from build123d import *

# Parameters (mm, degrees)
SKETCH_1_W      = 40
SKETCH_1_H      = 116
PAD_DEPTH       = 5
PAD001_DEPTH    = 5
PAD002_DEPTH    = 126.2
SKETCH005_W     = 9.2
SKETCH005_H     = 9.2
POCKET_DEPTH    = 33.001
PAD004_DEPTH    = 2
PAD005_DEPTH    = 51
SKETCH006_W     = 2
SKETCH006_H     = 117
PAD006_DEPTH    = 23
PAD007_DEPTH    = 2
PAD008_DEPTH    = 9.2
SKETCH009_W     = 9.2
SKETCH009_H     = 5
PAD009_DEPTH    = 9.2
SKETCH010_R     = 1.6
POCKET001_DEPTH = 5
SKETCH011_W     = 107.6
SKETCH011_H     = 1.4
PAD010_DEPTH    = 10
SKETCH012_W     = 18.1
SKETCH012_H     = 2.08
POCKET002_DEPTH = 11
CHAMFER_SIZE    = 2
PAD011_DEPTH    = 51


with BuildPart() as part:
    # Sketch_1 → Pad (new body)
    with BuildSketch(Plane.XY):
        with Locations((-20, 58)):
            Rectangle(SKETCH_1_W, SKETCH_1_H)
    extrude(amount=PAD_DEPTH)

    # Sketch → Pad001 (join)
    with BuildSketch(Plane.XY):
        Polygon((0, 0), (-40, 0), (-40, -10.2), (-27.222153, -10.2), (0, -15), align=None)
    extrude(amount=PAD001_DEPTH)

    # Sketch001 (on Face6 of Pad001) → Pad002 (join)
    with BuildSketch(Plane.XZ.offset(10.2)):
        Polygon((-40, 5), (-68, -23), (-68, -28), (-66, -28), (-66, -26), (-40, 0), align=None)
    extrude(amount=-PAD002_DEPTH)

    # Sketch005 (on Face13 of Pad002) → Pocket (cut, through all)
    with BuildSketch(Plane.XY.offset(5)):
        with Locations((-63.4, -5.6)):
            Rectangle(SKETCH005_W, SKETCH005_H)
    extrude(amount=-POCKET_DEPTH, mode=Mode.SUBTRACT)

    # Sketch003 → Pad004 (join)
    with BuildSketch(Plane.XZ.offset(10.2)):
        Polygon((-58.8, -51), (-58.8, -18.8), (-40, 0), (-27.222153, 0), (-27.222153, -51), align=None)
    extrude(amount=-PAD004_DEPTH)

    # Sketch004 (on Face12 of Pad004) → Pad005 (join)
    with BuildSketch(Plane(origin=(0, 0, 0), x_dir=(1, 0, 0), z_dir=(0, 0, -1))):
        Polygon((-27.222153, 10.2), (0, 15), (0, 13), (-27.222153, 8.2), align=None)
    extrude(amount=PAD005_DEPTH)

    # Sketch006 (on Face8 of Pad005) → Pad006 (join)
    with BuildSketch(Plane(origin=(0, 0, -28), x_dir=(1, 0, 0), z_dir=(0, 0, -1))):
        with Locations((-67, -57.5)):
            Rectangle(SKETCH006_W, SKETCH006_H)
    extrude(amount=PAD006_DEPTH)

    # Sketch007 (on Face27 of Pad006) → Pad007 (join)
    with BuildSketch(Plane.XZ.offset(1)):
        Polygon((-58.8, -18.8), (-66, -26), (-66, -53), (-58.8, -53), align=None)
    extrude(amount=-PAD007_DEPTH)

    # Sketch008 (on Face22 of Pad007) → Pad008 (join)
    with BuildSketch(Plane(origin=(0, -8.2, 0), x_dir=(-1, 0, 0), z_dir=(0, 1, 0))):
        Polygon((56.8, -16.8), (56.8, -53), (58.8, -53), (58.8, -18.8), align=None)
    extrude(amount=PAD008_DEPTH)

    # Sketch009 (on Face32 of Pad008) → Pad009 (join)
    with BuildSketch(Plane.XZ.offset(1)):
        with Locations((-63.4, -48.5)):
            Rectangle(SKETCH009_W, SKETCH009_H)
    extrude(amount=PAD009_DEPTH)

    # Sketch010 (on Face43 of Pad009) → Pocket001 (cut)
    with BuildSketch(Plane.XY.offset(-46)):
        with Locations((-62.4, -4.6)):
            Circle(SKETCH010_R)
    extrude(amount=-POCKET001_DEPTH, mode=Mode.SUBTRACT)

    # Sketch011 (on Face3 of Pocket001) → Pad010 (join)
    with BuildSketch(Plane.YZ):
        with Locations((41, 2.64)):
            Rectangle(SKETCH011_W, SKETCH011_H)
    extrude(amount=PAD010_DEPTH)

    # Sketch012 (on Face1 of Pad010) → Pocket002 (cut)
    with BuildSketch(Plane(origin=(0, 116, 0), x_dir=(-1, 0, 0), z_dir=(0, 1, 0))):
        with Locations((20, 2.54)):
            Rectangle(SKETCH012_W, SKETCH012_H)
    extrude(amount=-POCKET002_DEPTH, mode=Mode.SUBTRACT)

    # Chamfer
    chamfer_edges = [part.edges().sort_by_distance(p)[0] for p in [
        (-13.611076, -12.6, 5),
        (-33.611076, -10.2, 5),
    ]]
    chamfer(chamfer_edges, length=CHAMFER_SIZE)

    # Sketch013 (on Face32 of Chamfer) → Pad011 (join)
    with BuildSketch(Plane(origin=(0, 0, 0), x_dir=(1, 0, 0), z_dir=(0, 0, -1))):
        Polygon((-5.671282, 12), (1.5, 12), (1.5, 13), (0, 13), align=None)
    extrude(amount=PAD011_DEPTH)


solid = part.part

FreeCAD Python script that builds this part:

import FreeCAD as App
import Part
import Sketcher

V = App.Vector
Q = App.Units.Quantity


def edges_at(feature, points):
    """Names of the edges that pass closest to the given points."""
    edges = feature.Shape.Edges
    near = lambda p: min(range(len(edges)), key=lambda i: edges[i].distToShape(Part.Vertex(*p))[0])
    return sorted({f"Edge{near(p) + 1}" for p in points})

doc = App.newDocument("Part")
params = doc.addObject("Spreadsheet::Sheet", "Params")
for row, (alias, value) in enumerate([
    ("sketch1_width", "40 mm"),
    ("sketch1_height", "116 mm"),
    ("pad1_length", "5 mm"),
    ("sketch2_width", "40 mm"),
    ("sketch2_height", "15 mm"),
    ("sketch2_height2", "10.2 mm"),
    ("pad2_length", "5 mm"),
    ("sketch3_width", "2 mm"),
    ("sketch3_height", "5 mm"),
    ("pad3_length", "126.2 mm"),
    ("sketch4_width", "9.2 mm"),
    ("sketch5_height", "51 mm"),
    ("sketch5_height2", "32.2 mm"),
    ("pad4_length", "2 mm"),
    ("sketch6_height", "2 mm"),
    ("pad5_length", "51 mm"),
    ("sketch7_width", "2 mm"),
    ("sketch7_height", "117 mm"),
    ("pad6_length", "23 mm"),
    ("sketch8_height", "27 mm"),
    ("sketch8_width", "7.2 mm"),
    ("pad7_length", "2 mm"),
    ("sketch9_width", "2 mm"),
    ("sketch9_height", "36.2 mm"),
    ("pad8_length", "9.2 mm"),
    ("sketch10_height", "5 mm"),
    ("sketch10_width", "9.2 mm"),
    ("pad9_length", "9.2 mm"),
    ("sketch11_diameter", "3.2 mm"),
    ("pocket2_length", "5 mm"),
    ("sketch12_width", "107.6 mm"),
    ("sketch12_height", "1.4 mm"),
    ("pad10_length", "10 mm"),
    ("sketch13_width", "18.1 mm"),
    ("sketch13_height", "2.08 mm"),
    ("pocket3_length", "11 mm"),
    ("chamfer_size", "2 mm"),
    ("sketch14_height", "1 mm"),
    ("sketch14_width", "1.5 mm"),
    ("pad11_length", "51 mm"),
], start=1):
    params.set(f"A{row}", alias)
    params.set(f"B{row}", "=" + value)
    params.setAlias(f"B{row}", alias)

body = doc.addObject("PartDesign::Body", "Body")

sketch1 = body.newObject("Sketcher::SketchObject", "Sketch")
sketch1.AttachmentSupport = (doc.getObject("XY_Plane"), [""])
sketch1.MapMode = "FlatFace"
sketch1.addGeometry(Part.LineSegment(V(-40, 116, 0), V(-40, 0, 0)), False)
sketch1.addGeometry(Part.LineSegment(V(-40, 0, 0), V(0, 0, 0)), False)
sketch1.addGeometry(Part.LineSegment(V(0, 0, 0), V(0, 116, 0)), False)
sketch1.addGeometry(Part.LineSegment(V(0, 116, 0), V(-40, 116, 0)), False)
sketch1.addConstraint(Sketcher.Constraint("Coincident", 0, 2, 1, 1))
sketch1.addConstraint(Sketcher.Constraint("Coincident", 1, 2, 2, 1))
sketch1.addConstraint(Sketcher.Constraint("Coincident", 2, 2, 3, 1))
sketch1.addConstraint(Sketcher.Constraint("Coincident", 3, 2, 0, 1))
sketch1.addConstraint(Sketcher.Constraint("Vertical", 0))
sketch1.addConstraint(Sketcher.Constraint("Horizontal", 1))
sketch1.addConstraint(Sketcher.Constraint("Vertical", 2))
sketch1.addConstraint(Sketcher.Constraint("Horizontal", 3))
sketch1.addConstraint(Sketcher.Constraint("Coincident", 1, 2, -1, 1))
sketch1.addConstraint(Sketcher.Constraint("DistanceX", 1, 1, 1, 2, 40.0))
sketch1.addConstraint(Sketcher.Constraint("DistanceY", 0, 2, 0, 1, 116.0))
sketch1.setExpression("Constraints[9]", "Params.sketch1_width")
sketch1.setExpression("Constraints[10]", "Params.sketch1_height")
pad1 = body.newObject("PartDesign::Pad", "Pad")
pad1.Profile = sketch1
pad1.setExpression("Length", "Params.pad1_length")

sketch2 = body.newObject("Sketcher::SketchObject", "Sketch001")
sketch2.AttachmentSupport = (doc.getObject("XY_Plane"), [""])
sketch2.MapMode = "FlatFace"
sketch2.addGeometry(Part.LineSegment(V(0, 0, 0), V(-40, 0, 0)), False)
sketch2.addGeometry(Part.LineSegment(V(-40, 0, 0), V(-40, -10, 0)), False)
sketch2.addGeometry(Part.LineSegment(V(-40, -10, 0), V(-27, -10, 0)), False)
sketch2.addGeometry(Part.LineSegment(V(-27, -10, 0), V(0, -15, 0)), False)
sketch2.addGeometry(Part.LineSegment(V(0, -15, 0), V(0, 0, 0)), False)
sketch2.addConstraint(Sketcher.Constraint("Coincident", 0, 2, 1, 1))
sketch2.addConstraint(Sketcher.Constraint("Coincident", 1, 2, 2, 1))
sketch2.addConstraint(Sketcher.Constraint("Coincident", 2, 2, 3, 1))
sketch2.addConstraint(Sketcher.Constraint("Coincident", 3, 2, 4, 1))
sketch2.addConstraint(Sketcher.Constraint("Coincident", 4, 2, 0, 1))
sketch2.addConstraint(Sketcher.Constraint("Horizontal", 0))
sketch2.addConstraint(Sketcher.Constraint("Vertical", 1))
sketch2.addConstraint(Sketcher.Constraint("Horizontal", 2))
sketch2.addConstraint(Sketcher.Constraint("Vertical", 4))
sketch2.addConstraint(Sketcher.Constraint("Coincident", 4, 2, -1, 1))
sketch2.addConstraint(Sketcher.Constraint("DistanceX", 0, 2, 0, 1, 40.0))
sketch2.addConstraint(Sketcher.Constraint("DistanceY", 4, 1, 4, 2, 15.0))
sketch2.addConstraint(Sketcher.Constraint("Angle", 3, Q("-10 deg")))
sketch2.addConstraint(Sketcher.Constraint("DistanceY", 1, 2, 1, 1, 10.2))
sketch2.setExpression("Constraints[10]", "Params.sketch2_width")
sketch2.setExpression("Constraints[11]", "Params.sketch2_height")
sketch2.setExpression("Constraints[13]", "Params.sketch2_height2")
pad2 = body.newObject("PartDesign::Pad", "Pad001")
pad2.Profile = sketch2
pad2.setExpression("Length", "Params.pad2_length")

sketch3 = body.newObject("Sketcher::SketchObject", "Sketch002")
sketch3.AttachmentSupport = (doc.getObject("XZ_Plane"), [""])
sketch3.MapMode = "FlatFace"
sketch3.AttachmentOffset = App.Placement(V(0, 0, 10.2), App.Rotation())
sketch3.addGeometry(Part.LineSegment(V(-40, 5, 0), V(-68, -23, 0)), False)
sketch3.addGeometry(Part.LineSegment(V(-68, -23, 0), V(-68, -28, 0)), False)
sketch3.addGeometry(Part.LineSegment(V(-68, -28, 0), V(-66, -28, 0)), False)
sketch3.addGeometry(Part.LineSegment(V(-66, -28, 0), V(-66, -26, 0)), False)
sketch3.addGeometry(Part.LineSegment(V(-66, -26, 0), V(-40, 0, 0)), False)
sketch3.addGeometry(Part.LineSegment(V(-40, 0, 0), V(-40, 5, 0)), False)
sketch3.addConstraint(Sketcher.Constraint("Coincident", 0, 2, 1, 1))
sketch3.addConstraint(Sketcher.Constraint("Coincident", 1, 2, 2, 1))
sketch3.addConstraint(Sketcher.Constraint("Coincident", 2, 2, 3, 1))
sketch3.addConstraint(Sketcher.Constraint("Coincident", 3, 2, 4, 1))
sketch3.addConstraint(Sketcher.Constraint("Coincident", 4, 2, 5, 1))
sketch3.addConstraint(Sketcher.Constraint("Coincident", 5, 2, 0, 1))
sketch3.addConstraint(Sketcher.Constraint("Vertical", 1))
sketch3.addConstraint(Sketcher.Constraint("Horizontal", 2))
sketch3.addConstraint(Sketcher.Constraint("Vertical", 3))
sketch3.addConstraint(Sketcher.Constraint("Vertical", 5))
sketch3.addConstraint(Sketcher.Constraint("PointOnObject", 4, 2, -1))
sketch3.addConstraint(Sketcher.Constraint("Parallel", 0, 4))
sketch3.addConstraint(Sketcher.Constraint("Equal", 2, 3))
sketch3.addConstraint(Sketcher.Constraint("Equal", 1, 5))
sketch3.addConstraint(Sketcher.Constraint("DistanceX", 2, 1, 2, 2, 2.0))
sketch3.addConstraint(Sketcher.Constraint("DistanceY", 1, 2, 1, 1, 5.0))
sketch3.addConstraint(Sketcher.Constraint("DistanceX", 0, 2, -1, 1, 68.0))
sketch3.addConstraint(Sketcher.Constraint("DistanceY", 0, 2, -1, 1, 23.0))
sketch3.setExpression("Constraints[14]", "Params.sketch3_width")
sketch3.setExpression("Constraints[15]", "Params.sketch3_height")
pad3 = body.newObject("PartDesign::Pad", "Pad002")
pad3.Profile = sketch3
pad3.setExpression("Length", "Params.pad3_length")
pad3.Reversed = True

sketch4 = body.newObject("Sketcher::SketchObject", "Sketch003")
sketch4.AttachmentSupport = (doc.getObject("XY_Plane"), [""])
sketch4.MapMode = "FlatFace"
sketch4.AttachmentOffset = App.Placement(V(0, 0, 5), App.Rotation())
sketch4.addGeometry(Part.LineSegment(V(-68, -1, 0), V(-68, -10, 0)), False)
sketch4.addGeometry(Part.LineSegment(V(-68, -10, 0), V(-59, -10, 0)), False)
sketch4.addGeometry(Part.LineSegment(V(-59, -10, 0), V(-59, -1, 0)), False)
sketch4.addGeometry(Part.LineSegment(V(-59, -1, 0), V(-68, -1, 0)), False)
sketch4.addConstraint(Sketcher.Constraint("Coincident", 0, 2, 1, 1))
sketch4.addConstraint(Sketcher.Constraint("Coincident", 1, 2, 2, 1))
sketch4.addConstraint(Sketcher.Constraint("Coincident", 2, 2, 3, 1))
sketch4.addConstraint(Sketcher.Constraint("Coincident", 3, 2, 0, 1))
sketch4.addConstraint(Sketcher.Constraint("Vertical", 0))
sketch4.addConstraint(Sketcher.Constraint("Horizontal", 1))
sketch4.addConstraint(Sketcher.Constraint("Vertical", 2))
sketch4.addConstraint(Sketcher.Constraint("Horizontal", 3))
sketch4.addConstraint(Sketcher.Constraint("Equal", 3, 0))
sketch4.addConstraint(Sketcher.Constraint("DistanceX", 1, 1, 1, 2, 9.2))
sketch4.addConstraint(Sketcher.Constraint("DistanceX", 0, 2, -1, 1, 68.0))
sketch4.addConstraint(Sketcher.Constraint("DistanceY", 2, 2, -1, 1, 1.0))
sketch4.setExpression("Constraints[9]", "Params.sketch4_width")
pocket1 = body.newObject("PartDesign::Pocket", "Pocket")
pocket1.Profile = sketch4
pocket1.Type = "ThroughAll"

sketch5 = body.newObject("Sketcher::SketchObject", "Sketch004")
sketch5.AttachmentSupport = (doc.getObject("XZ_Plane"), [""])
sketch5.MapMode = "FlatFace"
sketch5.AttachmentOffset = App.Placement(V(0, 0, 10.2), App.Rotation())
sketch5.addGeometry(Part.LineSegment(V(-59, -19, 0), V(-59, -51, 0)), False)
sketch5.addGeometry(Part.LineSegment(V(-59, -51, 0), V(-27, -51, 0)), False)
sketch5.addGeometry(Part.LineSegment(V(-27, -51, 0), V(-27, 0, 0)), False)
sketch5.addGeometry(Part.LineSegment(V(-27, 0, 0), V(-40, 0, 0)), False)
sketch5.addGeometry(Part.LineSegment(V(-40, 0, 0), V(-59, -19, 0)), False)
sketch5.addConstraint(Sketcher.Constraint("Coincident", 0, 2, 1, 1))
sketch5.addConstraint(Sketcher.Constraint("Coincident", 1, 2, 2, 1))
sketch5.addConstraint(Sketcher.Constraint("Coincident", 2, 2, 3, 1))
sketch5.addConstraint(Sketcher.Constraint("Coincident", 3, 2, 4, 1))
sketch5.addConstraint(Sketcher.Constraint("Coincident", 4, 2, 0, 1))
sketch5.addConstraint(Sketcher.Constraint("Vertical", 0))
sketch5.addConstraint(Sketcher.Constraint("Horizontal", 1))
sketch5.addConstraint(Sketcher.Constraint("Vertical", 2))
sketch5.addConstraint(Sketcher.Constraint("Horizontal", 3))
sketch5.addConstraint(Sketcher.Constraint("PointOnObject", 2, 2, -1))
sketch5.addConstraint(Sketcher.Constraint("DistanceY", 2, 1, 2, 2, 51.0))
sketch5.addConstraint(Sketcher.Constraint("Angle", 4, Q("-135 deg")))
sketch5.addConstraint(Sketcher.Constraint("DistanceY", 0, 2, 0, 1, 32.2))
sketch5.addConstraint(Sketcher.Constraint("DistanceX", 3, 2, -1, 1, 40.0))
sketch5.addConstraint(Sketcher.Constraint("DistanceX", 1, 1, 1, 2, 31.577847))
sketch5.setExpression("Constraints[10]", "Params.sketch5_height")
sketch5.setExpression("Constraints[12]", "Params.sketch5_height2")
pad4 = body.newObject("PartDesign::Pad", "Pad003")
pad4.Profile = sketch5
pad4.setExpression("Length", "Params.pad4_length")
pad4.Reversed = True

sketch6 = body.newObject("Sketcher::SketchObject", "Sketch005")
sketch6.AttachmentSupport = (doc.getObject("XY_Plane"), [""])
sketch6.MapMode = "FlatFace"
sketch6.addGeometry(Part.LineSegment(V(0, -15, 0), V(-27.2, -10.2, 0)), False)
sketch6.addGeometry(Part.LineSegment(V(-27.2, -10.2, 0), V(-27.2, -8.2, 0)), False)
sketch6.addGeometry(Part.LineSegment(V(-27.2, -8.2, 0), V(0, -13, 0)), False)
sketch6.addGeometry(Part.LineSegment(V(0, -13, 0), V(0, -15, 0)), False)
sketch6.addConstraint(Sketcher.Constraint("Coincident", 0, 2, 1, 1))
sketch6.addConstraint(Sketcher.Constraint("Coincident", 1, 2, 2, 1))
sketch6.addConstraint(Sketcher.Constraint("Coincident", 2, 2, 3, 1))
sketch6.addConstraint(Sketcher.Constraint("Coincident", 3, 2, 0, 1))
sketch6.addConstraint(Sketcher.Constraint("Vertical", 1))
sketch6.addConstraint(Sketcher.Constraint("Vertical", 3))
sketch6.addConstraint(Sketcher.Constraint("PointOnObject", 2, 2, -2))
sketch6.addConstraint(Sketcher.Constraint("Parallel", 0, 2))
sketch6.addConstraint(Sketcher.Constraint("DistanceY", 1, 1, 1, 2, 2.0))
sketch6.addConstraint(Sketcher.Constraint("Angle", 0, Q("170 deg")))
sketch6.addConstraint(Sketcher.Constraint("DistanceY", 2, 2, -1, 1, 13.0))
sketch6.addConstraint(Sketcher.Constraint("DistanceY", 0, 2, -1, 1, 10.2))
sketch6.setExpression("Constraints[8]", "Params.sketch6_height")
pad5 = body.newObject("PartDesign::Pad", "Pad004")
pad5.Profile = sketch6
pad5.setExpression("Length", "Params.pad5_length")
pad5.Reversed = True

sketch7 = body.newObject("Sketcher::SketchObject", "Sketch006")
sketch7.AttachmentSupport = (doc.getObject("XY_Plane"), [""])
sketch7.MapMode = "FlatFace"
sketch7.AttachmentOffset = App.Placement(V(0, 0, -28), App.Rotation())
sketch7.addGeometry(Part.LineSegment(V(-68, -1, 0), V(-68, 116, 0)), False)
sketch7.addGeometry(Part.LineSegment(V(-68, 116, 0), V(-66, 116, 0)), False)
sketch7.addGeometry(Part.LineSegment(V(-66, 116, 0), V(-66, -1, 0)), False)
sketch7.addGeometry(Part.LineSegment(V(-66, -1, 0), V(-68, -1, 0)), False)
sketch7.addConstraint(Sketcher.Constraint("Coincident", 0, 2, 1, 1))
sketch7.addConstraint(Sketcher.Constraint("Coincident", 1, 2, 2, 1))
sketch7.addConstraint(Sketcher.Constraint("Coincident", 2, 2, 3, 1))
sketch7.addConstraint(Sketcher.Constraint("Coincident", 3, 2, 0, 1))
sketch7.addConstraint(Sketcher.Constraint("Vertical", 0))
sketch7.addConstraint(Sketcher.Constraint("Horizontal", 1))
sketch7.addConstraint(Sketcher.Constraint("Vertical", 2))
sketch7.addConstraint(Sketcher.Constraint("Horizontal", 3))
sketch7.addConstraint(Sketcher.Constraint("DistanceX", 1, 1, 1, 2, 2.0))
sketch7.addConstraint(Sketcher.Constraint("DistanceY", 0, 1, 0, 2, 117.0))
sketch7.addConstraint(Sketcher.Constraint("DistanceX", 0, 2, -1, 1, 68.0))
sketch7.addConstraint(Sketcher.Constraint("DistanceY", -1, 1, 0, 2, 116.0))
sketch7.setExpression("Constraints[8]", "Params.sketch7_width")
sketch7.setExpression("Constraints[9]", "Params.sketch7_height")
pad6 = body.newObject("PartDesign::Pad", "Pad005")
pad6.Profile = sketch7
pad6.setExpression("Length", "Params.pad6_length")
pad6.Reversed = True

sketch8 = body.newObject("Sketcher::SketchObject", "Sketch007")
sketch8.AttachmentSupport = (doc.getObject("XZ_Plane"), [""])
sketch8.MapMode = "FlatFace"
sketch8.AttachmentOffset = App.Placement(V(0, 0, 1), App.Rotation())
sketch8.addGeometry(Part.LineSegment(V(-59, -19, 0), V(-66, -26, 0)), False)
sketch8.addGeometry(Part.LineSegment(V(-66, -26, 0), V(-66, -53, 0)), False)
sketch8.addGeometry(Part.LineSegment(V(-66, -53, 0), V(-59, -53, 0)), False)
sketch8.addGeometry(Part.LineSegment(V(-59, -53, 0), V(-59, -19, 0)), False)
sketch8.addConstraint(Sketcher.Constraint("Coincident", 0, 2, 1, 1))
sketch8.addConstraint(Sketcher.Constraint("Coincident", 1, 2, 2, 1))
sketch8.addConstraint(Sketcher.Constraint("Coincident", 2, 2, 3, 1))
sketch8.addConstraint(Sketcher.Constraint("Coincident", 3, 2, 0, 1))
sketch8.addConstraint(Sketcher.Constraint("Vertical", 1))
sketch8.addConstraint(Sketcher.Constraint("Horizontal", 2))
sketch8.addConstraint(Sketcher.Constraint("Vertical", 3))
sketch8.addConstraint(Sketcher.Constraint("DistanceY", 1, 2, 1, 1, 27.0))
sketch8.addConstraint(Sketcher.Constraint("Angle", 0, Q("-135 deg")))
sketch8.addConstraint(Sketcher.Constraint("DistanceX", 2, 1, 2, 2, 7.2))
sketch8.addConstraint(Sketcher.Constraint("DistanceX", 0, 2, -1, 1, 66.0))
sketch8.addConstraint(Sketcher.Constraint("DistanceY", 0, 2, -1, 1, 26.0))
sketch8.setExpression("Constraints[7]", "Params.sketch8_height")
sketch8.setExpression("Constraints[9]", "Params.sketch8_width")
pad7 = body.newObject("PartDesign::Pad", "Pad006")
pad7.Profile = sketch8
pad7.setExpression("Length", "Params.pad7_length")
pad7.Reversed = True

sketch9 = body.newObject("Sketcher::SketchObject", "Sketch008")
sketch9.AttachmentSupport = (doc.getObject("XZ_Plane"), [""])
sketch9.MapMode = "FlatFace"
sketch9.AttachmentOffset = App.Placement(V(0, 0, 8.2), App.Rotation())
sketch9.addGeometry(Part.LineSegment(V(-56.8, -16.8, 0), V(-56.8, -53, 0)), False)
sketch9.addGeometry(Part.LineSegment(V(-56.8, -53, 0), V(-58.8, -53, 0)), False)
sketch9.addGeometry(Part.LineSegment(V(-58.8, -53, 0), V(-58.8, -18.8, 0)), False)
sketch9.addGeometry(Part.LineSegment(V(-58.8, -18.8, 0), V(-56.8, -16.8, 0)), False)
sketch9.addConstraint(Sketcher.Constraint("Coincident", 0, 2, 1, 1))
sketch9.addConstraint(Sketcher.Constraint("Coincident", 1, 2, 2, 1))
sketch9.addConstraint(Sketcher.Constraint("Coincident", 2, 2, 3, 1))
sketch9.addConstraint(Sketcher.Constraint("Coincident", 3, 2, 0, 1))
sketch9.addConstraint(Sketcher.Constraint("Vertical", 0))
sketch9.addConstraint(Sketcher.Constraint("Horizontal", 1))
sketch9.addConstraint(Sketcher.Constraint("Vertical", 2))
sketch9.addConstraint(Sketcher.Constraint("DistanceX", 1, 2, 1, 1, 2.0))
sketch9.addConstraint(Sketcher.Constraint("Angle", 3, Q("45 deg")))
sketch9.addConstraint(Sketcher.Constraint("DistanceY", 0, 2, 0, 1, 36.2))
sketch9.addConstraint(Sketcher.Constraint("DistanceY", 0, 2, -1, 1, 53.0))
sketch9.addConstraint(Sketcher.Constraint("DistanceX", 0, 2, -1, 1, 56.8))
sketch9.setExpression("Constraints[7]", "Params.sketch9_width")
sketch9.setExpression("Constraints[9]", "Params.sketch9_height")
pad8 = body.newObject("PartDesign::Pad", "Pad007")
pad8.Profile = sketch9
pad8.setExpression("Length", "Params.pad8_length")
pad8.Reversed = True

sketch10 = body.newObject("Sketcher::SketchObject", "Sketch009")
sketch10.AttachmentSupport = (doc.getObject("XZ_Plane"), [""])
sketch10.MapMode = "FlatFace"
sketch10.AttachmentOffset = App.Placement(V(0, 0, 1), App.Rotation())
sketch10.addGeometry(Part.LineSegment(V(-68, -46, 0), V(-68, -51, 0)), False)
sketch10.addGeometry(Part.LineSegment(V(-68, -51, 0), V(-59, -51, 0)), False)
sketch10.addGeometry(Part.LineSegment(V(-59, -51, 0), V(-59, -46, 0)), False)
sketch10.addGeometry(Part.LineSegment(V(-59, -46, 0), V(-68, -46, 0)), False)
sketch10.addConstraint(Sketcher.Constraint("Coincident", 0, 2, 1, 1))
sketch10.addConstraint(Sketcher.Constraint("Coincident", 1, 2, 2, 1))
sketch10.addConstraint(Sketcher.Constraint("Coincident", 2, 2, 3, 1))
sketch10.addConstraint(Sketcher.Constraint("Coincident", 3, 2, 0, 1))
sketch10.addConstraint(Sketcher.Constraint("Vertical", 0))
sketch10.addConstraint(Sketcher.Constraint("Horizontal", 1))
sketch10.addConstraint(Sketcher.Constraint("Vertical", 2))
sketch10.addConstraint(Sketcher.Constraint("Horizontal", 3))
sketch10.addConstraint(Sketcher.Constraint("DistanceY", 0, 2, 0, 1, 5.0))
sketch10.addConstraint(Sketcher.Constraint("DistanceX", 1, 1, 1, 2, 9.2))
sketch10.addConstraint(Sketcher.Constraint("DistanceX", 0, 2, -1, 1, 68.0))
sketch10.addConstraint(Sketcher.Constraint("DistanceY", 0, 2, -1, 1, 51.0))
sketch10.setExpression("Constraints[8]", "Params.sketch10_height")
sketch10.setExpression("Constraints[9]", "Params.sketch10_width")
pad9 = body.newObject("PartDesign::Pad", "Pad008")
pad9.Profile = sketch10
pad9.setExpression("Length", "Params.pad9_length")

sketch11 = body.newObject("Sketcher::SketchObject", "Sketch010")
sketch11.AttachmentSupport = (doc.getObject("XY_Plane"), [""])
sketch11.MapMode = "FlatFace"
sketch11.AttachmentOffset = App.Placement(V(0, 0, -46), App.Rotation())
sketch11.addGeometry(Part.Circle(V(-62.4, -4.6, 0), V(0, 0, 1), 1.6), False)
sketch11.addConstraint(Sketcher.Constraint("Diameter", 0, 3.2))
sketch11.addConstraint(Sketcher.Constraint("DistanceX", 0, 3, -1, 1, 62.4))
sketch11.addConstraint(Sketcher.Constraint("DistanceY", 0, 3, -1, 1, 4.6))
sketch11.setExpression("Constraints[0]", "Params.sketch11_diameter")
pocket2 = body.newObject("PartDesign::Pocket", "Pocket001")
pocket2.Profile = sketch11
pocket2.setExpression("Length", "Params.pocket2_length")

sketch12 = body.newObject("Sketcher::SketchObject", "Sketch011")
sketch12.AttachmentSupport = (doc.getObject("YZ_Plane"), [""])
sketch12.MapMode = "FlatFace"
sketch12.addGeometry(Part.LineSegment(V(-12.8, 3.3, 0), V(-12.8, 1.9, 0)), False)
sketch12.addGeometry(Part.LineSegment(V(-12.8, 1.9, 0), V(94.8, 1.9, 0)), False)
sketch12.addGeometry(Part.LineSegment(V(94.8, 1.9, 0), V(94.8, 3.3, 0)), False)
sketch12.addGeometry(Part.LineSegment(V(94.8, 3.3, 0), V(-12.8, 3.3, 0)), False)
sketch12.addConstraint(Sketcher.Constraint("Coincident", 0, 2, 1, 1))
sketch12.addConstraint(Sketcher.Constraint("Coincident", 1, 2, 2, 1))
sketch12.addConstraint(Sketcher.Constraint("Coincident", 2, 2, 3, 1))
sketch12.addConstraint(Sketcher.Constraint("Coincident", 3, 2, 0, 1))
sketch12.addConstraint(Sketcher.Constraint("Vertical", 0))
sketch12.addConstraint(Sketcher.Constraint("Horizontal", 1))
sketch12.addConstraint(Sketcher.Constraint("Vertical", 2))
sketch12.addConstraint(Sketcher.Constraint("Horizontal", 3))
sketch12.addConstraint(Sketcher.Constraint("DistanceX", 1, 1, 1, 2, 107.6))
sketch12.addConstraint(Sketcher.Constraint("DistanceY", 0, 2, 0, 1, 1.4))
sketch12.addConstraint(Sketcher.Constraint("DistanceX", 0, 2, -1, 1, 12.8))
sketch12.addConstraint(Sketcher.Constraint("DistanceY", -1, 1, 0, 2, 1.94))
sketch12.setExpression("Constraints[8]", "Params.sketch12_width")
sketch12.setExpression("Constraints[9]", "Params.sketch12_height")
pad10 = body.newObject("PartDesign::Pad", "Pad009")
pad10.Profile = sketch12
pad10.setExpression("Length", "Params.pad10_length")

sketch13 = body.newObject("Sketcher::SketchObject", "Sketch012")
sketch13.AttachmentSupport = (doc.getObject("XZ_Plane"), [""])
sketch13.MapMode = "FlatFace"
sketch13.AttachmentOffset = App.Placement(V(0, 0, -116), App.Rotation())
sketch13.addGeometry(Part.LineSegment(V(-10.9, 3.6, 0), V(-10.9, 1.5, 0)), False)
sketch13.addGeometry(Part.LineSegment(V(-10.9, 1.5, 0), V(-29.1, 1.5, 0)), False)
sketch13.addGeometry(Part.LineSegment(V(-29.1, 1.5, 0), V(-29.1, 3.6, 0)), False)
sketch13.addGeometry(Part.LineSegment(V(-29.1, 3.6, 0), V(-10.9, 3.6, 0)), False)
sketch13.addConstraint(Sketcher.Constraint("Coincident", 0, 2, 1, 1))
sketch13.addConstraint(Sketcher.Constraint("Coincident", 1, 2, 2, 1))
sketch13.addConstraint(Sketcher.Constraint("Coincident", 2, 2, 3, 1))
sketch13.addConstraint(Sketcher.Constraint("Coincident", 3, 2, 0, 1))
sketch13.addConstraint(Sketcher.Constraint("Vertical", 0))
sketch13.addConstraint(Sketcher.Constraint("Horizontal", 1))
sketch13.addConstraint(Sketcher.Constraint("Vertical", 2))
sketch13.addConstraint(Sketcher.Constraint("Horizontal", 3))
sketch13.addConstraint(Sketcher.Constraint("DistanceX", 1, 2, 1, 1, 18.1))
sketch13.addConstraint(Sketcher.Constraint("DistanceY", 0, 2, 0, 1, 2.08))
sketch13.addConstraint(Sketcher.Constraint("DistanceY", -1, 1, 0, 2, 1.5))
sketch13.addConstraint(Sketcher.Constraint("DistanceX", 0, 2, -1, 1, 10.95))
sketch13.setExpression("Constraints[8]", "Params.sketch13_width")
sketch13.setExpression("Constraints[9]", "Params.sketch13_height")
pocket3 = body.newObject("PartDesign::Pocket", "Pocket002")
pocket3.Profile = sketch13
pocket3.setExpression("Length", "Params.pocket3_length")
pocket3.Reversed = True
doc.recompute()

chamfer = body.newObject("PartDesign::Chamfer", "Chamfer")
chamfer.Base = (pocket3, edges_at(pocket3, [(-13.611, -12.6, 5), (-33.611, -10.2, 5)]))
chamfer.setExpression("Size", "Params.chamfer_size")

sketch14 = body.newObject("Sketcher::SketchObject", "Sketch013")
sketch14.AttachmentSupport = (doc.getObject("XY_Plane"), [""])
sketch14.MapMode = "FlatFace"
sketch14.addGeometry(Part.LineSegment(V(-5.7, -12, 0), V(1.5, -12, 0)), False)
sketch14.addGeometry(Part.LineSegment(V(1.5, -12, 0), V(1.5, -13, 0)), False)
sketch14.addGeometry(Part.LineSegment(V(1.5, -13, 0), V(0, -13, 0)), False)
sketch14.addGeometry(Part.LineSegment(V(0, -13, 0), V(-5.7, -12, 0)), False)
sketch14.addConstraint(Sketcher.Constraint("Coincident", 0, 2, 1, 1))
sketch14.addConstraint(Sketcher.Constraint("Coincident", 1, 2, 2, 1))
sketch14.addConstraint(Sketcher.Constraint("Coincident", 2, 2, 3, 1))
sketch14.addConstraint(Sketcher.Constraint("Coincident", 3, 2, 0, 1))
sketch14.addConstraint(Sketcher.Constraint("Horizontal", 0))
sketch14.addConstraint(Sketcher.Constraint("Vertical", 1))
sketch14.addConstraint(Sketcher.Constraint("Horizontal", 2))
sketch14.addConstraint(Sketcher.Constraint("PointOnObject", 2, 2, -2))
sketch14.addConstraint(Sketcher.Constraint("DistanceY", 1, 2, 1, 1, 1.0))
sketch14.addConstraint(Sketcher.Constraint("Angle", 3, Q("170 deg")))
sketch14.addConstraint(Sketcher.Constraint("DistanceX", 2, 2, 2, 1, 1.5))
sketch14.addConstraint(Sketcher.Constraint("DistanceY", 0, 2, -1, 1, 12.0))
sketch14.setExpression("Constraints[8]", "Params.sketch14_height")
sketch14.setExpression("Constraints[10]", "Params.sketch14_width")
pad11 = body.newObject("PartDesign::Pad", "Pad010")
pad11.Profile = sketch14
pad11.setExpression("Length", "Params.pad11_length")
pad11.Reversed = True

doc.recompute()
